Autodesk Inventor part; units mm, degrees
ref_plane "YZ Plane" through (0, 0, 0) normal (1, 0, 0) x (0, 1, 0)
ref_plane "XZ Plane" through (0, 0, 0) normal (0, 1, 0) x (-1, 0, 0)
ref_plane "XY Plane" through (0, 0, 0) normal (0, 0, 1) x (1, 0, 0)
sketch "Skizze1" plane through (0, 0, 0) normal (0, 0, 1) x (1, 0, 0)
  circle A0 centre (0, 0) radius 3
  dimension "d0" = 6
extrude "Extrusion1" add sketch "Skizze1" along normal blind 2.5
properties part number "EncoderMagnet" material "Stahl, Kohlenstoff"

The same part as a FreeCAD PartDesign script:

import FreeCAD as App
import Part
import Sketcher
Q = App.Units.Quantity

doc = App.newDocument("Part")
body = doc.addObject("PartDesign::Body", "Body")

# Sketch on XY plane
sketch1 = body.newObject("Sketcher::SketchObject", "Sketch")
sketch1.AttachmentSupport = (doc.getObject("XY_Plane"), [""])
sketch1.MapMode = "FlatFace"
sketch1.addGeometry(Part.Circle(App.Vector(0, 0, 0), App.Vector(0, 0, 1), 3), False)
sketch1.addConstraint([
    Sketcher.Constraint("Coincident", 0, 3, -1, 1),
    Sketcher.Constraint("Diameter", 0, Q("6 mm")),
])
pad1 = body.newObject("PartDesign::Pad", "Pad")
pad1.Profile = sketch1
pad1.Length = 2.5

doc.recompute()
